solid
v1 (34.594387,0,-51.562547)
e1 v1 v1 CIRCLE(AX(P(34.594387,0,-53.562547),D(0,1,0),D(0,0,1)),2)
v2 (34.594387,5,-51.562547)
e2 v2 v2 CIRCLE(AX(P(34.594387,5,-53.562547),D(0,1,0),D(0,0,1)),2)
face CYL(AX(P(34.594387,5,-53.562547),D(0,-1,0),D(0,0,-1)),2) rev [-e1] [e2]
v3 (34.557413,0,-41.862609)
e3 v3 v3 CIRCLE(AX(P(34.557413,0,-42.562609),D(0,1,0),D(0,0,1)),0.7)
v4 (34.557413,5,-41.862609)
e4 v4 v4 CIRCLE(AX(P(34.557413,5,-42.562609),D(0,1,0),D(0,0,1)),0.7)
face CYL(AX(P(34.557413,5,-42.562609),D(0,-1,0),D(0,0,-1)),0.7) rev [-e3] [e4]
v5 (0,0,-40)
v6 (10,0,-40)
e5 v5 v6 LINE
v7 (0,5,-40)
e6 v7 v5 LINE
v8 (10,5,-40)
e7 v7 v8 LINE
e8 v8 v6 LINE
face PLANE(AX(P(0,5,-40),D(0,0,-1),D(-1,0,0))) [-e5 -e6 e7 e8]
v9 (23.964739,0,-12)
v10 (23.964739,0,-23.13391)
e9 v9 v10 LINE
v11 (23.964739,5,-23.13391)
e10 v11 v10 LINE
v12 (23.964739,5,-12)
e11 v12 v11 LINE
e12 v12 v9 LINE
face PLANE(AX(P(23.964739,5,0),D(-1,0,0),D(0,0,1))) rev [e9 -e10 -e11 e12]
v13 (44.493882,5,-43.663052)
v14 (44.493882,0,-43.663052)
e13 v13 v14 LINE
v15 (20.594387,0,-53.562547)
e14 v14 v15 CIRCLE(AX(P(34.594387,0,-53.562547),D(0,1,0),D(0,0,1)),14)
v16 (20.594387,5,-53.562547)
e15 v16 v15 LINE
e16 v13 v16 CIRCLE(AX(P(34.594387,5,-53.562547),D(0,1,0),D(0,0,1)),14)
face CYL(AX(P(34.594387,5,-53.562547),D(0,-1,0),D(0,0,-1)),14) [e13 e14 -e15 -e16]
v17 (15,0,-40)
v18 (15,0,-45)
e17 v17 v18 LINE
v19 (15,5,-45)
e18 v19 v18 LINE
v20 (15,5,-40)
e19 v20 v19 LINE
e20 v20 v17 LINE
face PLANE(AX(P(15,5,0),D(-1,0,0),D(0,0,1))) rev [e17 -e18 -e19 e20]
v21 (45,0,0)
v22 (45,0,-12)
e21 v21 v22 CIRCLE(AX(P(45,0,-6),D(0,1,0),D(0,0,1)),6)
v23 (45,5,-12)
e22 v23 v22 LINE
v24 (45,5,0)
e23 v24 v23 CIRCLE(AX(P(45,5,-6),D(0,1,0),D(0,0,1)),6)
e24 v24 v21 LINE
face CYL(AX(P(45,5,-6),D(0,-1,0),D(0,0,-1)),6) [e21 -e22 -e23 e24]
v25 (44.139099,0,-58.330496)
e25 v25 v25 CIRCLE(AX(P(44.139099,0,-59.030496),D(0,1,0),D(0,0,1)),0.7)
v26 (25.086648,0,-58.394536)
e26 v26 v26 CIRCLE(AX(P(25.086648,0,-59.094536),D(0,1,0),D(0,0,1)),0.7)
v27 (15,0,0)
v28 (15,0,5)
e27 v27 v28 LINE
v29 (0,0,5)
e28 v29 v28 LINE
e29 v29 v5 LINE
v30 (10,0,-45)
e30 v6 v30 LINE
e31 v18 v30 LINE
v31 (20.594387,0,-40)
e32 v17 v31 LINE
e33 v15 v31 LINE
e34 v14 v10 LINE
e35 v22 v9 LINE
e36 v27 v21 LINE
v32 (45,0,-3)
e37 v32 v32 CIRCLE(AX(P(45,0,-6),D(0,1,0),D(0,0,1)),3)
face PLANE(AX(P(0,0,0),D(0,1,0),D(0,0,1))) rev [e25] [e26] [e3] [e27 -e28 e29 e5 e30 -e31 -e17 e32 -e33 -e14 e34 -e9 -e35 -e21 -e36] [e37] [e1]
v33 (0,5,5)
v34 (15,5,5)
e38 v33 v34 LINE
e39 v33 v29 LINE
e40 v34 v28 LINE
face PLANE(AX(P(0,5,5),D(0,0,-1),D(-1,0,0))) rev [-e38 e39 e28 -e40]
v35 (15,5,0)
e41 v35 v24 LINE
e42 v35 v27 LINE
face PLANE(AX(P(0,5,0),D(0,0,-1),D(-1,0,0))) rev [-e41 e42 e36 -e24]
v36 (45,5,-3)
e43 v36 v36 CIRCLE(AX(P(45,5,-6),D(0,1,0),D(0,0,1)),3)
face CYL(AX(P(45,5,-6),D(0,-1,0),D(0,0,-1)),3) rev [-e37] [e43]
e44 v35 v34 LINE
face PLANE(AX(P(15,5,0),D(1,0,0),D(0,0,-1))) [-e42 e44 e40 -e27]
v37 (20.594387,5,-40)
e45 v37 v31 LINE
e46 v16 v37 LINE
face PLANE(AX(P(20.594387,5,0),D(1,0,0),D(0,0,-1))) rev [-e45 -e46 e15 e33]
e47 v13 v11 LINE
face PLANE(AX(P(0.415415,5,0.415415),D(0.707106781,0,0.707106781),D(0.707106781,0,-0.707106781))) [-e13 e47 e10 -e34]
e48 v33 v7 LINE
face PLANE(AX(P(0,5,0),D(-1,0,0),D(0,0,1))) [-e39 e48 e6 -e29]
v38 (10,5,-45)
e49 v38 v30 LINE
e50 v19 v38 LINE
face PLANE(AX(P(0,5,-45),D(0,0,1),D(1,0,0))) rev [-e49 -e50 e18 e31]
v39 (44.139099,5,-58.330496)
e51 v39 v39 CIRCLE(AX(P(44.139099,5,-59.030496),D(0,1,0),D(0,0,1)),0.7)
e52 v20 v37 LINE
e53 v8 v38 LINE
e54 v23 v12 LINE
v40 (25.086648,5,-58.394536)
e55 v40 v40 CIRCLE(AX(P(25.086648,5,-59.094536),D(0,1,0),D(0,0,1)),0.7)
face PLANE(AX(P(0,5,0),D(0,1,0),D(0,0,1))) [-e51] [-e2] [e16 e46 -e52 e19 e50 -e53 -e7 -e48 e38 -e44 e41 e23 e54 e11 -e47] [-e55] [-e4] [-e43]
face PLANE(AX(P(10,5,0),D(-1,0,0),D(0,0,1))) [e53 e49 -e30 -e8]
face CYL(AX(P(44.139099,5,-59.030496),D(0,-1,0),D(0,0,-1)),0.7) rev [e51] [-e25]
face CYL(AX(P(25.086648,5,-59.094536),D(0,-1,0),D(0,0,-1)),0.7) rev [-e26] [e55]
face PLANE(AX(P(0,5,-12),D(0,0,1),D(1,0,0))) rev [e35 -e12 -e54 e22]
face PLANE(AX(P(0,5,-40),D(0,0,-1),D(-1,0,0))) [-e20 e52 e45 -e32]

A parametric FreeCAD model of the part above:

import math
import FreeCAD as App
import Part
import Sketcher
Q = App.Units.Quantity

doc = App.newDocument("Part")
body = doc.addObject("PartDesign::Body", "Body")

# Sketch on XZ plane
sketch1 = body.newObject("Sketcher::SketchObject", "Sketch")
sketch1.AttachmentSupport = (doc.getObject("XZ_Plane"), [""])
sketch1.MapMode = "FlatFace"
sketch1.addGeometry([
    Part.LineSegment(App.Vector(20.6, -53.6, 0), App.Vector(20.6, -40, 0)),  # 0
    Part.LineSegment(App.Vector(20.6, -40, 0), App.Vector(15, -40, 0)),  # 1
    Part.LineSegment(App.Vector(15, -40, 0), App.Vector(15, -45, 0)),  # 2
    Part.LineSegment(App.Vector(15, -45, 0), App.Vector(10, -45, 0)),  # 3
    Part.LineSegment(App.Vector(10, -45, 0), App.Vector(10, -40, 0)),  # 4
    Part.LineSegment(App.Vector(10, -40, 0), App.Vector(0, -40, 0)),  # 5
    Part.LineSegment(App.Vector(0, -40, 0), App.Vector(0, 5, 0)),  # 6
    Part.LineSegment(App.Vector(0, 5, 0), App.Vector(15, 5, 0)),  # 7
    Part.LineSegment(App.Vector(15, 5, 0), App.Vector(15, 0, 0)),  # 8
    Part.LineSegment(App.Vector(15, 0, 0), App.Vector(45, 0, 0)),  # 9
    Part.ArcOfCircle(Part.Circle(App.Vector(45, -6, 0), App.Vector(0, 0, 1), 6), math.radians(-90), math.radians(90)),  # 10
    Part.LineSegment(App.Vector(45, -12, 0), App.Vector(24, -12, 0)),  # 11
    Part.LineSegment(App.Vector(24, -12, 0), App.Vector(24, -23.1, 0)),  # 12
    Part.LineSegment(App.Vector(24, -23.1, 0), App.Vector(27.2, -26.3, 0)),  # 13
    Part.LineSegment(App.Vector(27.2, -26.3, 0), App.Vector(44.5, -43.7, 0)),  # 14
    Part.ArcOfCircle(Part.Circle(App.Vector(34.6, -53.6, 0), App.Vector(0, 0, 1), 14), math.radians(180), math.radians(405)),  # 15
    Part.Circle(App.Vector(34.6, -42.6, 0), App.Vector(0, 0, 1), 0.7),  # 16
    Part.Circle(App.Vector(34.6, -53.6, 0), App.Vector(0, 0, 1), 2),  # 17
    Part.Circle(App.Vector(25.1, -59.1, 0), App.Vector(0, 0, 1), 0.7),  # 18
    Part.Circle(App.Vector(44.1, -59, 0), App.Vector(0, 0, 1), 0.7),  # 19
    Part.Circle(App.Vector(45, -6, 0), App.Vector(0, 0, 1), 3),  # 20
], False)
sketch1.addConstraint([
    Sketcher.Constraint("Coincident", 0, 2, 1, 1),
    Sketcher.Constraint("Coincident", 1, 2, 2, 1),
    Sketcher.Constraint("Coincident", 2, 2, 3, 1),
    Sketcher.Constraint("Coincident", 3, 2, 4, 1),
    Sketcher.Constraint("Coincident", 4, 2, 5, 1),
    Sketcher.Constraint("Coincident", 5, 2, 6, 1),
    Sketcher.Constraint("Coincident", 6, 2, 7, 1),
    Sketcher.Constraint("Coincident", 7, 2, 8, 1),
    Sketcher.Constraint("Coincident", 8, 2, 9, 1),
    Sketcher.Constraint("Tangent", 9, 2, 10, 2),
    Sketcher.Constraint("Tangent", 10, 1, 11, 1),
    Sketcher.Constraint("Coincident", 11, 2, 12, 1),
    Sketcher.Constraint("Coincident", 12, 2, 13, 1),
    Sketcher.Constraint("Coincident", 13, 2, 14, 1),
    Sketcher.Constraint("Tangent", 14, 2, 15, 2),
    Sketcher.Constraint("Tangent", 15, 1, 0, 1),
    Sketcher.Constraint("Vertical", 0),
    Sketcher.Constraint("Horizontal", 1),
    Sketcher.Constraint("Vertical", 2),
    Sketcher.Constraint("Horizontal", 3),
    Sketcher.Constraint("Vertical", 4),
    Sketcher.Constraint("Horizontal", 5),
    Sketcher.Constraint("Vertical", 6),
    Sketcher.Constraint("Horizontal", 7),
    Sketcher.Constraint("Vertical", 8),
    Sketcher.Constraint("Horizontal", 9),
    Sketcher.Constraint("Horizontal", 11),
    Sketcher.Constraint("Vertical", 12),
    Sketcher.Constraint("Coincident", 17, 3, 15, 3),
    Sketcher.Constraint("Coincident", 20, 3, 10, 3),
    Sketcher.Constraint("Equal", 16, 18),
    Sketcher.Constraint("Equal", 18, 19),
    Sketcher.Constraint("PointOnObject", 5, 2, -2),
    Sketcher.Constraint("PointOnObject", 8, 2, -1),
    Sketcher.Constraint("Parallel", 13, 14),
    Sketcher.Constraint("Horizontal", 1, 2, 4, 2),
    Sketcher.Constraint("Vertical", 2, 2, 7, 2),
    Sketcher.Constraint("Equal", 3, 2),
    Sketcher.Constraint("Equal", 4, 8),
    Sketcher.Constraint("Diameter", 17, 4.0),
    Sketcher.Constraint("Diameter", 20, 6.0),
    Sketcher.Constraint("Radius", 10, 6.0),
    Sketcher.Constraint("Radius", 15, 14.0),
    Sketcher.Constraint("Diameter", 16, 1.4),
    Sketcher.Constraint("DistanceX", 3, 2, 3, 1, 5.0),
    Sketcher.Constraint("DistanceX", 5, 2, 5, 1, 10.0),
    Sketcher.Constraint("DistanceX", 9, 1, 9, 2, 30.0),
    Sketcher.Constraint("DistanceY", 6, 1, 6, 2, 45.0),
    Sketcher.Constraint("Angle", 13, Q("-45 deg")),
    Sketcher.Constraint("DistanceX", 11, 2, 11, 1, 21.035261),
    Sketcher.Constraint("DistanceY", 12, 2, 12, 1, 11.13391),
    Sketcher.Constraint("DistanceX", -1, 1, 19, 3, 44.139099),
    Sketcher.Constraint("DistanceY", 13, 2, -1, 1, 26.346901),
    Sketcher.Constraint("DistanceY", 16, 3, 12, 2, 19.428699),
    Sketcher.Constraint("DistanceX", 1, 2, 1, 1, 5.594387),
    Sketcher.Constraint("DistanceX", -1, 1, 18, 3, 25.086648),
    Sketcher.Constraint("DistanceY", 18, 3, 15, 3, 5.531989),
    Sketcher.Constraint("DistanceY", 19, 3, 15, 3, 5.467949),
    Sketcher.Constraint("DistanceX", 16, 3, 14, 2, 9.936469),
])
pad1 = body.newObject("PartDesign::Pad", "Pad")
pad1.Profile = sketch1
pad1.Length = 5
pad1.Reversed = True

doc.recompute()
